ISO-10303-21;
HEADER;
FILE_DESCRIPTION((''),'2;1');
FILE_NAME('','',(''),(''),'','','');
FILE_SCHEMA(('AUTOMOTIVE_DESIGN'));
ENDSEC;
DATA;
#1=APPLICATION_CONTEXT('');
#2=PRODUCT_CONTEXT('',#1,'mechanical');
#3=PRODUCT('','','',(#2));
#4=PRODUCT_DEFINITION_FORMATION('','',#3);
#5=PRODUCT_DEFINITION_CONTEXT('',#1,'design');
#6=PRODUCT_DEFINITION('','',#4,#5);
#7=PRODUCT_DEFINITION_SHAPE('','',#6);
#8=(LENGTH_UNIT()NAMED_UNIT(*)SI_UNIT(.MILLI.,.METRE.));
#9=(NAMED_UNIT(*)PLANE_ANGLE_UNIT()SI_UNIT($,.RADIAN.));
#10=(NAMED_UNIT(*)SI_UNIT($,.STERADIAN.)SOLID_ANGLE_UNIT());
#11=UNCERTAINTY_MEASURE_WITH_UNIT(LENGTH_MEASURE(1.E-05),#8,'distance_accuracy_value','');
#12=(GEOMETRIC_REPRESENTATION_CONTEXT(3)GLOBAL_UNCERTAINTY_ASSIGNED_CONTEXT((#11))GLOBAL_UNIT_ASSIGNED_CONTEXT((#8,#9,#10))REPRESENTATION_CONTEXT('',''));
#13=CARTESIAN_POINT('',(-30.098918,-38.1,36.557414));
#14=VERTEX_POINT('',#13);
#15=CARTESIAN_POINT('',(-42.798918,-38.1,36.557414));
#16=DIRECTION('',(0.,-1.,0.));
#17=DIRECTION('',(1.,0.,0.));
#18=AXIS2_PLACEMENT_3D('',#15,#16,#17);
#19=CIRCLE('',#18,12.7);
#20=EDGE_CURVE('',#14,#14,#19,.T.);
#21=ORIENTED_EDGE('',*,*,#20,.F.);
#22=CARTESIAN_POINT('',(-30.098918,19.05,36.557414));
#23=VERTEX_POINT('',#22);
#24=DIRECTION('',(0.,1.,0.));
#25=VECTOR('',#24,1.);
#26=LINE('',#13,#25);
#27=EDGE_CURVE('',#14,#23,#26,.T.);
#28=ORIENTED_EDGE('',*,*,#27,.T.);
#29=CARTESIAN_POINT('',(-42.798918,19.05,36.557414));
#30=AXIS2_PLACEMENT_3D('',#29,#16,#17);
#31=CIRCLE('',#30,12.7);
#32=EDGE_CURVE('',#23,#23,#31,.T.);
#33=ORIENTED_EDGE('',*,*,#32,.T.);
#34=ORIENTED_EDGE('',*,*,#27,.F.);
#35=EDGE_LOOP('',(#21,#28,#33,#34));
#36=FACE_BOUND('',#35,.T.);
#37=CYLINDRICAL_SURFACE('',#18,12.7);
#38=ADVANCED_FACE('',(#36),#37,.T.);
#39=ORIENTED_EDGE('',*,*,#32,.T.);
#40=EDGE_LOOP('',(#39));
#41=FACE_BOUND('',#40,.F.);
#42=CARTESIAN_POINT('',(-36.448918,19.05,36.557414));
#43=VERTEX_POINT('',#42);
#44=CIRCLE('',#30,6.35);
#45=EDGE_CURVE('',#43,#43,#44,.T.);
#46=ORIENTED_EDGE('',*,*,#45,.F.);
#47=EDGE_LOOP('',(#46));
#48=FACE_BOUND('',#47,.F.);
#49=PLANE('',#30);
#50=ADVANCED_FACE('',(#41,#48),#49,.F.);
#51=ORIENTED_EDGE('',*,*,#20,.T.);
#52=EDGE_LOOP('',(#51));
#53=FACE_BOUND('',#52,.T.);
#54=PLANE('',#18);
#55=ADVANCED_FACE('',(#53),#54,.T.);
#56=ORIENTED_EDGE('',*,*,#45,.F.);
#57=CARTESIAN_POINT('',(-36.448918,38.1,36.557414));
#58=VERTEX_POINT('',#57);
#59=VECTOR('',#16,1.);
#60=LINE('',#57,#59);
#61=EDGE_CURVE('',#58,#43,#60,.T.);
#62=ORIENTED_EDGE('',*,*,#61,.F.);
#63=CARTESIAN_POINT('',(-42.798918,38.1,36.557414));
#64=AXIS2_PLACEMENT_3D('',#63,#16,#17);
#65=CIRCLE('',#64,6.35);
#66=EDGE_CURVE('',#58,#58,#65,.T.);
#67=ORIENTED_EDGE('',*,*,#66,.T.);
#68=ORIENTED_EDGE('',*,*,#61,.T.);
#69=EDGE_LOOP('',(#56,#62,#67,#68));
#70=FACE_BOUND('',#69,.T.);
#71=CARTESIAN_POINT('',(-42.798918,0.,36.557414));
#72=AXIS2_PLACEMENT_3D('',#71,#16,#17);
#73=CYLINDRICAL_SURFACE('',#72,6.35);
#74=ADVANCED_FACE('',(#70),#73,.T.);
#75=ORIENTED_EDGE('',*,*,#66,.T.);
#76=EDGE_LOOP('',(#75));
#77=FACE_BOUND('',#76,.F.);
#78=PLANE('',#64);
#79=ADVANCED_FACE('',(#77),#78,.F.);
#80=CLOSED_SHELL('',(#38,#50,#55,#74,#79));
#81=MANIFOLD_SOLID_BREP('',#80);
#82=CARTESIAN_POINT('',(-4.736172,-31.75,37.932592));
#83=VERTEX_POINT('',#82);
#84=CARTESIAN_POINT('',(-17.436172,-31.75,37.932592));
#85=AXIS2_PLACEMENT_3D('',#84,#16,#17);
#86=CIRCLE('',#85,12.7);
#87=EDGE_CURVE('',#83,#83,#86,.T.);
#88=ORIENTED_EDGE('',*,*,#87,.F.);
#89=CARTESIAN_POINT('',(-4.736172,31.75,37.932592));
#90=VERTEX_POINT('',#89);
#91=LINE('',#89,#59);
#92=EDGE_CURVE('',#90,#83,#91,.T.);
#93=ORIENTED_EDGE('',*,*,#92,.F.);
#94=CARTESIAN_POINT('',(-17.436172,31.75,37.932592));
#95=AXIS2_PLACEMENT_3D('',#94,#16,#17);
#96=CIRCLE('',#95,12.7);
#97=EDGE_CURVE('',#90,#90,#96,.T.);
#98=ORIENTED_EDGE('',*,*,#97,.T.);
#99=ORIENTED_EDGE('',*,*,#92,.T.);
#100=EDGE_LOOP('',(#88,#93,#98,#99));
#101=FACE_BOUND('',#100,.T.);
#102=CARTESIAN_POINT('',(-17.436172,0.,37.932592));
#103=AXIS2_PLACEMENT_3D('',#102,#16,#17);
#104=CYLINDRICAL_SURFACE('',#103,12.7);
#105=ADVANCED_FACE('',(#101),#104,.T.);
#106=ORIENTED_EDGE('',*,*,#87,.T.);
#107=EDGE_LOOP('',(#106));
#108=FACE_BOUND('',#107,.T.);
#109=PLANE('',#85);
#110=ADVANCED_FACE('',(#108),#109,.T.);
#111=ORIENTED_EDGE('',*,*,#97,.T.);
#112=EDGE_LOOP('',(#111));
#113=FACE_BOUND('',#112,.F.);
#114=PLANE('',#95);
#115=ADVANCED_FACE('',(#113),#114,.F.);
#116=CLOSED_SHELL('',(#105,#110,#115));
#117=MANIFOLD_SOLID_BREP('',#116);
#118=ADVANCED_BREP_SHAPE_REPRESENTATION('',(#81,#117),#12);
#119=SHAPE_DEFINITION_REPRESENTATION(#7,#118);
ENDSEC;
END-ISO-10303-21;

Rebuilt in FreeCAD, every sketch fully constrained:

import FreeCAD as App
import Part
import Sketcher
from FreeCAD import Vector
Q = App.Units.Quantity

doc = App.newDocument("Part")
body = doc.addObject("PartDesign::Body", "Body")

sketch1 = body.newObject("Sketcher::SketchObject", "Sketch")
sketch1.AttachmentSupport = (doc.getObject("XZ_Plane"), [""])
sketch1.MapMode = "FlatFace"
sketch1.addGeometry(Part.Circle(Vector(-43, 37, 0), Vector(0, 0, 1), 6), False)
sketch1.addConstraint([
    Sketcher.Constraint("Diameter", 0, Q("0.5 in")),
    Sketcher.Constraint("DistanceX", 0, 3, -1, 1, Q("42.798918 mm")),
    Sketcher.Constraint("DistanceY", -1, 1, 0, 3, Q("36.557414 mm")),
])
pad1 = body.newObject("PartDesign::Pad", "Pad")
pad1.Profile = sketch1
pad1.Length = Q("3 in")
pad1.Midplane = True

sketch2 = body.newObject("Sketcher::SketchObject", "Sketch001")
sketch2.AttachmentSupport = (doc.getObject("XZ_Plane"), [""])
sketch2.MapMode = "FlatFace"
sketch2.AttachmentOffset = App.Placement(Vector(0, 0, 1.5 * 25.4), App.Rotation())
sketch2.addGeometry(Part.Circle(Vector(-43, 37, 0), Vector(0, 0, 1), 13), False)
sketch2.addConstraint([
    Sketcher.Constraint("Diameter", 0, Q("1 in")),
    Sketcher.Constraint("DistanceX", 0, 3, -1, 1, Q("42.798918 mm")),
    Sketcher.Constraint("DistanceY", -1, 1, 0, 3, Q("36.557414 mm")),
])
pad2 = body.newObject("PartDesign::Pad", "Pad001")
pad2.Profile = sketch2
pad2.Length = Q("2.25 in")
pad2.Reversed = True
body2 = doc.addObject("PartDesign::Body", "Body001")

sketch3 = body2.newObject("Sketcher::SketchObject", "Sketch002")
sketch3.AttachmentSupport = (doc.getObject("XZ_Plane001"), [""])
sketch3.MapMode = "FlatFace"
sketch3.addGeometry(Part.Circle(Vector(-17, 38, 0), Vector(0, 0, 1), 13), False)
sketch3.addConstraint([
    Sketcher.Constraint("Diameter", 0, Q("1 in")),
    Sketcher.Constraint("DistanceX", 0, 3, -1, 1, Q("17.436172 mm")),
    Sketcher.Constraint("DistanceY", -1, 1, 0, 3, Q("37.932592 mm")),
])
pad3 = body2.newObject("PartDesign::Pad", "Pad002")
pad3.Profile = sketch3
pad3.Length = Q("2.5 in")
pad3.Midplane = True

doc.recompute()
